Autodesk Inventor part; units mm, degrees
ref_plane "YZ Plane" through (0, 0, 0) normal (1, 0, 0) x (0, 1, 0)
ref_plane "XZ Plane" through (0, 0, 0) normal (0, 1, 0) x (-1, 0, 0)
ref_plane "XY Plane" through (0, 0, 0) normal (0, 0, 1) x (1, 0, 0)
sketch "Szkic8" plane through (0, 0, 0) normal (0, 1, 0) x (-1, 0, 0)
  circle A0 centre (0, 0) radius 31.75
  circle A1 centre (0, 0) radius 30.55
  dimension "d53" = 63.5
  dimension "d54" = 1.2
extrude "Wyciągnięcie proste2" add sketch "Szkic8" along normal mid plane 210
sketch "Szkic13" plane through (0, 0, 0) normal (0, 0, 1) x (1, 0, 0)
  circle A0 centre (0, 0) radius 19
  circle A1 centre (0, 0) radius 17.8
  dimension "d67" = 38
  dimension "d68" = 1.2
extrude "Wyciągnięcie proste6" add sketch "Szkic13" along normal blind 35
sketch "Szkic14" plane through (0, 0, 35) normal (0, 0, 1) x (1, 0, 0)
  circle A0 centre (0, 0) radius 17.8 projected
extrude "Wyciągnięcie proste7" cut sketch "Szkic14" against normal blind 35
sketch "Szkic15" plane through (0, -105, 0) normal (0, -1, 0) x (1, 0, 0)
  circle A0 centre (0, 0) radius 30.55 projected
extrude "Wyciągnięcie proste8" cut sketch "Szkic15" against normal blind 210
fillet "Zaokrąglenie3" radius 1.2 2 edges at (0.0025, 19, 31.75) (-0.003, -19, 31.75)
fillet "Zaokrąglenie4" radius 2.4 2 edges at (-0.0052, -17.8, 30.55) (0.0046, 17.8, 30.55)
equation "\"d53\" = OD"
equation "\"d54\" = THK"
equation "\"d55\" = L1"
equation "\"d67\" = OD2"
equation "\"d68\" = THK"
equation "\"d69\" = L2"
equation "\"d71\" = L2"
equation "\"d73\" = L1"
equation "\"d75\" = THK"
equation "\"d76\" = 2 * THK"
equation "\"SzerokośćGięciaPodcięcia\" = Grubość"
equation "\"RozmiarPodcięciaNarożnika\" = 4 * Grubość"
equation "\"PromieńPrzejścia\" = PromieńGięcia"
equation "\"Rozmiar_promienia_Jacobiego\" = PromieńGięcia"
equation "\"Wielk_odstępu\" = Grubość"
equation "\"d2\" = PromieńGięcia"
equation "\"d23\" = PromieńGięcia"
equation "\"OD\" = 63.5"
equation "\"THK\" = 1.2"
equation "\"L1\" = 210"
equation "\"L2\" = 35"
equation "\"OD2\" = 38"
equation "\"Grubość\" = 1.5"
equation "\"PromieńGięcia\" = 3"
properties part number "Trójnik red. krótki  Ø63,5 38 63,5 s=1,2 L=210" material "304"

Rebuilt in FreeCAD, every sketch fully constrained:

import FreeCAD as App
import Part
import Sketcher


def edges_at(feature, points):
    """Names of the edges that pass closest to the given points."""
    edges = feature.Shape.Edges
    near = lambda p: min(range(len(edges)), key=lambda i: edges[i].distToShape(Part.Vertex(*p))[0])
    return sorted({f"Edge{near(p) + 1}" for p in points})

doc = App.newDocument("Part")
body = doc.addObject("PartDesign::Body", "Body")

sketch1 = body.newObject("Sketcher::SketchObject", "Sketch")
sketch1.AttachmentSupport = (doc.getObject("XZ_Plane"), [""])
sketch1.MapMode = "FlatFace"
sketch1.addGeometry([
    Part.Circle(App.Vector(0, 0, 0), App.Vector(0, 0, 1), 31.75),
    Part.Circle(App.Vector(0, 0, 0), App.Vector(0, 0, 1), 30.55),
], False)
sketch1.addConstraint([
    Sketcher.Constraint("Coincident", 0, 3, -1, 1),
    Sketcher.Constraint("Coincident", 1, 3, -1, 1),
    Sketcher.Constraint("Diameter", 0, 63.5),
    Sketcher.Constraint("Diameter", 1, 61.1),
])
pad1 = body.newObject("PartDesign::Pad", "Pad")
pad1.Profile = sketch1
pad1.Length = 210
pad1.Midplane = True

sketch2 = body.newObject("Sketcher::SketchObject", "Sketch001")
sketch2.AttachmentSupport = (doc.getObject("XY_Plane"), [""])
sketch2.MapMode = "FlatFace"
sketch2.addGeometry([
    Part.Circle(App.Vector(0, 0, 0), App.Vector(0, 0, 1), 19),
    Part.Circle(App.Vector(0, 0, 0), App.Vector(0, 0, 1), 17.8),
], False)
sketch2.addConstraint([
    Sketcher.Constraint("Coincident", 0, 3, -1, 1),
    Sketcher.Constraint("Coincident", 1, 3, -1, 1),
    Sketcher.Constraint("Diameter", 0, 38.0),
    Sketcher.Constraint("Diameter", 1, 35.6),
])
pad2 = body.newObject("PartDesign::Pad", "Pad001")
pad2.Profile = sketch2
pad2.Length = 35

sketch3 = body.newObject("Sketcher::SketchObject", "Sketch002")
sketch3.AttachmentSupport = (doc.getObject("XY_Plane"), [""])
sketch3.MapMode = "FlatFace"
sketch3.AttachmentOffset = App.Placement(App.Vector(0, 0, 35), App.Rotation())
sketch3.addGeometry(Part.Circle(App.Vector(0, 0, 0), App.Vector(0, 0, 1), 17.8), False)
sketch3.addConstraint([
    Sketcher.Constraint("Coincident", 0, 3, -1, 1),
    Sketcher.Constraint("Diameter", 0, 35.6),
])
pocket1 = body.newObject("PartDesign::Pocket", "Pocket")
pocket1.Profile = sketch3
pocket1.Length = 35

sketch4 = body.newObject("Sketcher::SketchObject", "Sketch003")
sketch4.AttachmentSupport = (doc.getObject("XZ_Plane"), [""])
sketch4.MapMode = "FlatFace"
sketch4.AttachmentOffset = App.Placement(App.Vector(0, 0, 105), App.Rotation())
sketch4.addGeometry(Part.Circle(App.Vector(0, 0, 0), App.Vector(0, 0, 1), 30.55), False)
sketch4.addConstraint([
    Sketcher.Constraint("Coincident", 0, 3, -1, 1),
    Sketcher.Constraint("Diameter", 0, 61.1),
])
pocket2 = body.newObject("PartDesign::Pocket", "Pocket001")
pocket2.Profile = sketch4
pocket2.Length = 210
doc.recompute()

fillet = body.newObject("PartDesign::Fillet", "Fillet")
fillet.Base = (pocket2, edges_at(pocket2, [(0.003, 19, 31.75), (-0.003, -19, 31.75)]))
fillet.Radius = 1.2
doc.recompute()

fillet2 = body.newObject("PartDesign::Fillet", "Fillet001")
fillet2.Base = (fillet, edges_at(fillet, [(-0.005, -17.8, 30.55), (0.005, 17.8, 30.55)]))
fillet2.Radius = 2.4

doc.recompute()
